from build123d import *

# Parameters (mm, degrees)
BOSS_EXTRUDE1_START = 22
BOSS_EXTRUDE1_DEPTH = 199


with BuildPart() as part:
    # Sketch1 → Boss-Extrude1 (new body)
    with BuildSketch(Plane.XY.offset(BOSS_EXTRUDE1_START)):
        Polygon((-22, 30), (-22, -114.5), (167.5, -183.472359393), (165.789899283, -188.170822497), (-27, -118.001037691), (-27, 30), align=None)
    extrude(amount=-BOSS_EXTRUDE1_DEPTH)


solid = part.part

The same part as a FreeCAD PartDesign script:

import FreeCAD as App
import Part
import Sketcher
Q = App.Units.Quantity

doc = App.newDocument("Part")
body = doc.addObject("PartDesign::Body", "Body")

# Sketch on XY plane
sketch1 = body.newObject("Sketcher::SketchObject", "Sketch")
sketch1.AttachmentSupport = (doc.getObject("XY_Plane"), [""])
sketch1.MapMode = "FlatFace"
sketch1.AttachmentOffset = App.Placement(App.Vector(0, 0, 22), App.Rotation())
sketch1.addGeometry([
    Part.LineSegment(App.Vector(-22, -114, 0), App.Vector(-22, 30, 0)),  # 0
    Part.LineSegment(App.Vector(-22, 30, 0), App.Vector(-27, 30, 0)),  # 1
    Part.LineSegment(App.Vector(-27, 30, 0), App.Vector(-27, -118, 0)),  # 2
    Part.LineSegment(App.Vector(-27, -118, 0), App.Vector(166, -188, 0)),  # 3
    Part.LineSegment(App.Vector(166, -188, 0), App.Vector(168, -183, 0)),  # 4
    Part.LineSegment(App.Vector(168, -183, 0), App.Vector(-22, -114, 0)),  # 5
], False)
sketch1.addConstraint([
    Sketcher.Constraint("Coincident", 0, 2, 1, 1),
    Sketcher.Constraint("Coincident", 1, 2, 2, 1),
    Sketcher.Constraint("Coincident", 2, 2, 3, 1),
    Sketcher.Constraint("Coincident", 3, 2, 4, 1),
    Sketcher.Constraint("Coincident", 4, 2, 5, 1),
    Sketcher.Constraint("Coincident", 5, 2, 0, 1),
    Sketcher.Constraint("Vertical", 0),
    Sketcher.Constraint("Horizontal", 1),
    Sketcher.Constraint("Vertical", 2),
    Sketcher.Constraint("Perpendicular", 3, 4),
    Sketcher.Constraint("Perpendicular", 4, 5),
    Sketcher.Constraint("DistanceX", 1, 2, 1, 1, Q("5 mm")),
    Sketcher.Constraint("Angle", 3, Q("-20 deg")),
    Sketcher.Constraint("Distance", 4, Q("5 mm")),
    Sketcher.Constraint("DistanceY", 0, 1, 0, 2, Q("144.5 mm")),
    Sketcher.Constraint("DistanceX", 0, 2, -1, 1, Q("22 mm")),
    Sketcher.Constraint("DistanceY", -1, 1, 0, 2, Q("30 mm")),
    Sketcher.Constraint("DistanceX", -1, 1, 4, 2, Q("167.5 mm")),
])
pad1 = body.newObject("PartDesign::Pad", "Pad")
pad1.Profile = sketch1
pad1.Length = 199
pad1.Reversed = True

doc.recompute()
